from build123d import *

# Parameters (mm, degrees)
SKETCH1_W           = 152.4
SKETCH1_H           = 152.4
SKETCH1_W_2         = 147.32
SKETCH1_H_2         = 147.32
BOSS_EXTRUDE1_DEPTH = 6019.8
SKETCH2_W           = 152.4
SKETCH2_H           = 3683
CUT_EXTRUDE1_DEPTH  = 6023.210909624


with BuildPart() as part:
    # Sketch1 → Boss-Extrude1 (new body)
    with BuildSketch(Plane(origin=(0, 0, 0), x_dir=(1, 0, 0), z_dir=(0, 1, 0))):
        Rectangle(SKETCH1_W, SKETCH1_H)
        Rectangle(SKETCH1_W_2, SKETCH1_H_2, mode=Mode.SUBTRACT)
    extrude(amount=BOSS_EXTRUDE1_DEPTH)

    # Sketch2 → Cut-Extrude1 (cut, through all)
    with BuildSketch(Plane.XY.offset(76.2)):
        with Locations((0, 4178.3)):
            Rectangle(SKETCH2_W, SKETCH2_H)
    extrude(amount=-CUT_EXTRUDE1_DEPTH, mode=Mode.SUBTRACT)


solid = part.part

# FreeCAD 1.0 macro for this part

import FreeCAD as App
import Part
import Sketcher
Q = App.Units.Quantity


def add_polygon(sketch, points):
    """Adds a closed chain of lines whose ends are joined by coincident constraints."""
    first, n = sketch.GeometryCount, len(points)
    for a, b in zip(points, points[1:] + points[:1]):
        sketch.addGeometry(Part.LineSegment(App.Vector(*a, 0), App.Vector(*b, 0)), False)
    for i in range(n):
        sketch.addConstraint(Sketcher.Constraint("Coincident", first + i, 2, first + (i + 1) % n, 1))

doc = App.newDocument("Part")
params = doc.addObject("Spreadsheet::Sheet", "Params")
for row, (alias, value) in enumerate([
    ("sketch1_width", "6 in"),
    ("sketch1_width2", "5.8 in"),
    ("pad1_length", "237 in"),
    ("sketch2_width", "6 in"),
    ("sketch2_height", "145 in"),
], start=1):
    params.set(f"A{row}", alias)
    params.set(f"B{row}", "=" + value)
    params.setAlias(f"B{row}", alias)

body = doc.addObject("PartDesign::Body", "Body")

# Sketch on XZ plane
sketch1 = doc.addObject("Sketcher::SketchObject", "Sketch")
body.addObject(sketch1)
sketch1.AttachmentSupport = (doc.XZ_Plane, [""])
sketch1.MapMode = "FlatFace"
add_polygon(sketch1, [(-76.2, -76.2), (-76.2, 76.2), (76.2, 76.2), (76.2, -76.2)])  # lines 0-3
add_polygon(sketch1, [(73.66, 73.66), (-73.66, 73.66), (-73.66, -73.66), (73.66, -73.66)])  # lines 4-7
sketch1.addConstraint([
    Sketcher.Constraint("Vertical", 0),
    Sketcher.Constraint("Horizontal", 1),
    Sketcher.Constraint("Vertical", 2),
    Sketcher.Constraint("Horizontal", 3),
    Sketcher.Constraint("Horizontal", 4),
    Sketcher.Constraint("Vertical", 5),
    Sketcher.Constraint("Horizontal", 6),
    Sketcher.Constraint("Vertical", 7),
    Sketcher.Constraint("Symmetric", 0, 2, 2, 2, -1, 1),
    Sketcher.Constraint("Symmetric", 4, 2, 6, 2, -1, 1),
    Sketcher.Constraint("Equal", 3, 0),
    Sketcher.Constraint("Equal", 6, 5),
    Sketcher.Constraint("DistanceX", 1, 1, 1, 2, Q("6 in")),
    Sketcher.Constraint("DistanceX", 4, 2, 4, 1, Q("5.8 in")),
])
sketch1.setExpression("Constraints[20]", "Params.sketch1_width")
sketch1.setExpression("Constraints[21]", "Params.sketch1_width2")
pad1 = doc.addObject("PartDesign::Pad", "Pad")
body.addObject(pad1)
pad1.Profile = sketch1
pad1.setExpression("Length", "Params.pad1_length")
pad1.Reversed = True

# Sketch on XY plane
sketch2 = doc.addObject("Sketcher::SketchObject", "Sketch001")
body.addObject(sketch2)
sketch2.AttachmentSupport = (doc.XY_Plane, [""])
sketch2.MapMode = "FlatFace"
sketch2.AttachmentOffset = App.Placement(App.Vector(0, 0, 3 * 25.4), App.Rotation())
add_polygon(sketch2, [(-76.2, 6019.8), (-76.2, 2336.8), (76.2, 2336.8), (76.2, 6019.8)])  # lines 0-3
sketch2.addConstraint([
    Sketcher.Constraint("Vertical", 0),
    Sketcher.Constraint("Horizontal", 1),
    Sketcher.Constraint("Vertical", 2),
    Sketcher.Constraint("Horizontal", 3),
    Sketcher.Constraint("DistanceX", 1, 1, 1, 2, Q("6 in")),
    Sketcher.Constraint("DistanceY", 0, 2, 0, 1, Q("145 in")),
    Sketcher.Constraint("DistanceX", 0, 2, -1, 1, Q("3 in")),
    Sketcher.Constraint("DistanceY", -1, 1, 0, 2, Q("92 in")),
])
sketch2.setExpression("Constraints[8]", "Params.sketch2_width")
sketch2.setExpression("Constraints[9]", "Params.sketch2_height")
pocket1 = doc.addObject("PartDesign::Pocket", "Pocket")
body.addObject(pocket1)
pocket1.Profile = sketch2
pocket1.Type = "ThroughAll"

doc.recompute()
